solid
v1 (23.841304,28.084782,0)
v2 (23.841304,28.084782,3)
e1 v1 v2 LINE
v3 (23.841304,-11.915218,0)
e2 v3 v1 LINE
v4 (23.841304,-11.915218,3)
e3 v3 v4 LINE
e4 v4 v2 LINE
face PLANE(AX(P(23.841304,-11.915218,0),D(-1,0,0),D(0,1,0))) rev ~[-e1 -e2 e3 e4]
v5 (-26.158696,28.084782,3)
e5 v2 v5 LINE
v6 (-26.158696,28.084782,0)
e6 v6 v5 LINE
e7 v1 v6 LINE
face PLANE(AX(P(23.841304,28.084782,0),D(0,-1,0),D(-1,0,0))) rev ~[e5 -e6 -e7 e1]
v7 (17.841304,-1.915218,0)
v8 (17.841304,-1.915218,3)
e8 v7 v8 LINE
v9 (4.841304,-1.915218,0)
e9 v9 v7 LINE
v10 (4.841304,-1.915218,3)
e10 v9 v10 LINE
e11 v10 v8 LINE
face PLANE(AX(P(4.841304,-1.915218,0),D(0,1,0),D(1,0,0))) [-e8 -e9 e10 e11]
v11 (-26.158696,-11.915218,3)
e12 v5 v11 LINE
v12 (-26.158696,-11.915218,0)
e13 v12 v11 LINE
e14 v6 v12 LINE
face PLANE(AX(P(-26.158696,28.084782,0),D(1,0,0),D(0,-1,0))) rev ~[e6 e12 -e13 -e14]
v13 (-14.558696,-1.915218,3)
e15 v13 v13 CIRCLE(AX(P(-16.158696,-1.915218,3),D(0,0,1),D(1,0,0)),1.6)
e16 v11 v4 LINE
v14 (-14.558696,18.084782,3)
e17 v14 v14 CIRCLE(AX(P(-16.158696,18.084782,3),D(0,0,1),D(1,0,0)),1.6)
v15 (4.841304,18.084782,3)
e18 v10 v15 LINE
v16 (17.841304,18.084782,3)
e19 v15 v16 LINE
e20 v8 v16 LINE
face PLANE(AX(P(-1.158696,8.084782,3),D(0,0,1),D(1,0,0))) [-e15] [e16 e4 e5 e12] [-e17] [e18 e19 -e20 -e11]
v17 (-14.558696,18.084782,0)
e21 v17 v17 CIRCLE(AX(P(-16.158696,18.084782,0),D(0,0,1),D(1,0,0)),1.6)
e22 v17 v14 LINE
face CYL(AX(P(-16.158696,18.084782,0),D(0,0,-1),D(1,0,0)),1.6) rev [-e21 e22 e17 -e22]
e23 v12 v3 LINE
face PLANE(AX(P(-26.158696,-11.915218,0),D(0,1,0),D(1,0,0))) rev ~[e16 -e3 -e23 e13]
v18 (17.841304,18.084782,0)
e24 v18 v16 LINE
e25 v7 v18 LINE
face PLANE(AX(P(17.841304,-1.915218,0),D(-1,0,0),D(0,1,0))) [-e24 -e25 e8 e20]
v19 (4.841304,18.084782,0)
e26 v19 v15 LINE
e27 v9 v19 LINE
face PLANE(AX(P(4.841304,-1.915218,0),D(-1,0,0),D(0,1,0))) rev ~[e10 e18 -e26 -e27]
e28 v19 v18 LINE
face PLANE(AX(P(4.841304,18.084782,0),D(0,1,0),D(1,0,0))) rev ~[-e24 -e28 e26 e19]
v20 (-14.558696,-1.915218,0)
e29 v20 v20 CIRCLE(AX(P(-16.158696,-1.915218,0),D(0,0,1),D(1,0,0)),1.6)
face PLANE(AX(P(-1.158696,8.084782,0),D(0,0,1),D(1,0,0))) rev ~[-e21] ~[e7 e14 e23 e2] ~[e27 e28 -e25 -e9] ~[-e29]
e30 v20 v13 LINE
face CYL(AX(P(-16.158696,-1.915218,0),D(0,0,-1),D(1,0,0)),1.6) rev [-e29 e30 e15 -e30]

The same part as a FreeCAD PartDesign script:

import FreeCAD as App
import Part
import Sketcher
from FreeCAD import Vector
Q = App.Units.Quantity


def add_polygon(sketch, points):
    """Adds a closed chain of lines whose ends are joined by coincident constraints."""
    first, n = sketch.GeometryCount, len(points)
    for a, b in zip(points, points[1:] + points[:1]):
        sketch.addGeometry(Part.LineSegment(App.Vector(*a, 0), App.Vector(*b, 0)), False)
    for i in range(n):
        sketch.addConstraint(Sketcher.Constraint("Coincident", first + i, 2, first + (i + 1) % n, 1))

doc = App.newDocument("Part")
body = doc.addObject("PartDesign::Body", "Body")

# Sketch on XY plane
sketch1 = body.newObject("Sketcher::SketchObject", "Sketch")
sketch1.AttachmentSupport = (doc.getObject("XY_Plane"), [""])
sketch1.MapMode = "FlatFace"
add_polygon(sketch1, [(-26.158696, 28.084782), (-26.158696, -11.915218), (23.841304, -11.915218), (23.841304, 28.084782)])  # lines 0-3
sketch1.addGeometry(Part.Circle(Vector(-16.158696, -1.915218, 0), Vector(0, 0, 1), 1.6), False)  # 4
sketch1.addGeometry(Part.Circle(Vector(-16.158696, 18.084782, 0), Vector(0, 0, 1), 1.6), False)  # 5
add_polygon(sketch1, [(17.841304, -1.915218), (4.841304, -1.915218), (4.841304, 18.084782), (17.841304, 18.084782)])  # lines 6-9
sketch1.addConstraint([
    Sketcher.Constraint("Vertical", 0),
    Sketcher.Constraint("Horizontal", 1),
    Sketcher.Constraint("Vertical", 2),
    Sketcher.Constraint("Horizontal", 3),
    Sketcher.Constraint("Horizontal", 6),
    Sketcher.Constraint("Vertical", 7),
    Sketcher.Constraint("Horizontal", 8),
    Sketcher.Constraint("Vertical", 9),
    Sketcher.Constraint("Equal", 4, 5),
    Sketcher.Constraint("Horizontal", 4, 3, 6, 2),
    Sketcher.Constraint("Horizontal", 5, 3, 7, 2),
    Sketcher.Constraint("Vertical", 4, 3, 5, 3),
    Sketcher.Constraint("Diameter", 4, Q("3.2 mm")),
    Sketcher.Constraint("DistanceX", 1, 1, 1, 2, Q("50 mm")),
    Sketcher.Constraint("DistanceX", 6, 2, 6, 1, Q("13 mm")),
    Sketcher.Constraint("DistanceY", 0, 2, 0, 1, Q("40 mm")),
    Sketcher.Constraint("DistanceY", 7, 1, 7, 2, Q("20 mm")),
    Sketcher.Constraint("DistanceX", 0, 2, 4, 3, Q("10 mm")),
    Sketcher.Constraint("DistanceY", 0, 2, 4, 3, Q("10 mm")),
    Sketcher.Constraint("DistanceX", 4, 3, 6, 2, Q("21 mm")),
    Sketcher.Constraint("DistanceY", 4, 3, -1, 1, Q("1.915218 mm")),
    Sketcher.Constraint("DistanceX", 4, 3, -1, 1, Q("16.158696 mm")),
])
pad1 = body.newObject("PartDesign::Pad", "Pad")
pad1.Profile = sketch1
pad1.Length = 3

doc.recompute()
